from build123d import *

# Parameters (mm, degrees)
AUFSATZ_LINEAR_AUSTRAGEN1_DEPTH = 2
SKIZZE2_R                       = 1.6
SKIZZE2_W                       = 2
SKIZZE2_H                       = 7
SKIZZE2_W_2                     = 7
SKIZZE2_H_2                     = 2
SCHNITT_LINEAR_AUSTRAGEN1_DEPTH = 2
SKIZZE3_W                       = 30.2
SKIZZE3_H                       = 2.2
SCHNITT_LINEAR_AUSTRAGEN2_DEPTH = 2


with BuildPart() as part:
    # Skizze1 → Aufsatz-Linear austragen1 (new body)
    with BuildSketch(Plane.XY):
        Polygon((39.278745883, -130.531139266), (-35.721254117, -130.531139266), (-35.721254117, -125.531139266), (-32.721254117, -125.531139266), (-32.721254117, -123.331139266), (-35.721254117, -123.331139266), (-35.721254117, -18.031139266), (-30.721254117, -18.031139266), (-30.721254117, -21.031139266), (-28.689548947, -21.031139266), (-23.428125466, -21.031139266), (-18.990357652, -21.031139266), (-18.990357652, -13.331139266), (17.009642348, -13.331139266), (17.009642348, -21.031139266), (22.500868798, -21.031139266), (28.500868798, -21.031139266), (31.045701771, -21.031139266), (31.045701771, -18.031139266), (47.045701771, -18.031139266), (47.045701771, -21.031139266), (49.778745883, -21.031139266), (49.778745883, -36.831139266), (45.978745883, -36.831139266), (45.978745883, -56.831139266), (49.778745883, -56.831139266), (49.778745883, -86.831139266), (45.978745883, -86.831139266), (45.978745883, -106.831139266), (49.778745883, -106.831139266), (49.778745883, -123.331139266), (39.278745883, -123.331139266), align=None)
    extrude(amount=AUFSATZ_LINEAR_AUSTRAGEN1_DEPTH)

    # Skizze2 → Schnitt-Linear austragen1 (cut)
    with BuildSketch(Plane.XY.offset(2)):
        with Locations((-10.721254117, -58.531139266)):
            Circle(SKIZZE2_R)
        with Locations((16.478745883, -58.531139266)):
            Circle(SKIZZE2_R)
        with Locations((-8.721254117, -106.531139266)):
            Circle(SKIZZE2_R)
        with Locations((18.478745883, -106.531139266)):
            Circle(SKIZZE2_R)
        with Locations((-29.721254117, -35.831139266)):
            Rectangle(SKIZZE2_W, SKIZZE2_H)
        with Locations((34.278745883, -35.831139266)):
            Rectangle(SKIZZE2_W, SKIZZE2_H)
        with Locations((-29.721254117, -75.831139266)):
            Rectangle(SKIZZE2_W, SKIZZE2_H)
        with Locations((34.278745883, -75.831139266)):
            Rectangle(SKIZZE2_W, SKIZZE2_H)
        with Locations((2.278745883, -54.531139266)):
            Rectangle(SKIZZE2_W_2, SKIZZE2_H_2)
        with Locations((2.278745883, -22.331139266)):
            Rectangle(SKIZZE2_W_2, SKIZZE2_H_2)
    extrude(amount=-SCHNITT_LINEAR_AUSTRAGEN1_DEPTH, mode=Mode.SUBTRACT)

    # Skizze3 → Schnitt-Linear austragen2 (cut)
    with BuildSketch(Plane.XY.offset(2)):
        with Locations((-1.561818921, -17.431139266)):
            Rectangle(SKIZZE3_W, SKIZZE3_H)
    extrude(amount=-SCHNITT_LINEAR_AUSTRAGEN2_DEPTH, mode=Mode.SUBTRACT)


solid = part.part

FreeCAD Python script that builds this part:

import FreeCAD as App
import Part
import Sketcher
Q = App.Units.Quantity

doc = App.newDocument("Part")
body = doc.addObject("PartDesign::Body", "Body")

# Sketch on XY plane
sketch1 = body.newObject("Sketcher::SketchObject", "Sketch")
sketch1.AttachmentSupport = (doc.getObject("XY_Plane"), [""])
sketch1.MapMode = "FlatFace"
sketch1.addGeometry(Part.LineSegment(App.Vector(-35.721254, -130.531139, 0), App.Vector(39.278746, -130.531139, 0)), False)
sketch1.addGeometry(Part.LineSegment(App.Vector(39.278746, -130.531139, 0), App.Vector(39.278746, -123.331139, 0)), False)
sketch1.addGeometry(Part.LineSegment(App.Vector(39.278746, -123.331139, 0), App.Vector(49.778746, -123.331139, 0)), False)
sketch1.addGeometry(Part.LineSegment(App.Vector(49.778746, -123.331139, 0), App.Vector(49.778746, -106.831139, 0)), False)
sketch1.addGeometry(Part.LineSegment(App.Vector(49.778746, -106.831139, 0), App.Vector(45.978746, -106.831139, 0)), False)
sketch1.addGeometry(Part.LineSegment(App.Vector(45.978746, -106.831139, 0), App.Vector(45.978746, -86.831139, 0)), False)
sketch1.addGeometry(Part.LineSegment(App.Vector(45.978746, -86.831139, 0), App.Vector(49.778746, -86.831139, 0)), False)
sketch1.addGeometry(Part.LineSegment(App.Vector(49.778746, -86.831139, 0), App.Vector(49.778746, -56.831139, 0)), False)
sketch1.addGeometry(Part.LineSegment(App.Vector(49.778746, -56.831139, 0), App.Vector(45.978746, -56.831139, 0)), False)
sketch1.addGeometry(Part.LineSegment(App.Vector(45.978746, -56.831139, 0), App.Vector(45.978746, -36.831139, 0)), False)
sketch1.addGeometry(Part.LineSegment(App.Vector(45.978746, -36.831139, 0), App.Vector(49.778746, -36.831139, 0)), False)
sketch1.addGeometry(Part.LineSegment(App.Vector(49.778746, -36.831139, 0), App.Vector(49.778746, -21.031139, 0)), False)
sketch1.addGeometry(Part.LineSegment(App.Vector(49.778746, -21.031139, 0), App.Vector(47.045702, -21.031139, 0)), False)
sketch1.addGeometry(Part.LineSegment(App.Vector(47.045702, -21.031139, 0), App.Vector(47.045702, -18.031139, 0)), False)
sketch1.addGeometry(Part.LineSegment(App.Vector(47.045702, -18.031139, 0), App.Vector(31.045702, -18.031139, 0)), False)
sketch1.addGeometry(Part.LineSegment(App.Vector(31.045702, -18.031139, 0), App.Vector(31.045702, -21.031139, 0)), False)
sketch1.addGeometry(Part.LineSegment(App.Vector(31.045702, -21.031139, 0), App.Vector(17.009642, -21.031139, 0)), False)
sketch1.addGeometry(Part.LineSegment(App.Vector(17.009642, -21.031139, 0), App.Vector(17.009642, -13.331139, 0)), False)
sketch1.addGeometry(Part.LineSegment(App.Vector(17.009642, -13.331139, 0), App.Vector(-18.990358, -13.331139, 0)), False)
sketch1.addGeometry(Part.LineSegment(App.Vector(-18.990358, -13.331139, 0), App.Vector(-18.990358, -21.031139, 0)), False)
sketch1.addGeometry(Part.LineSegment(App.Vector(-18.990358, -21.031139, 0), App.Vector(-30.721254, -21.031139, 0)), False)
sketch1.addGeometry(Part.LineSegment(App.Vector(-30.721254, -21.031139, 0), App.Vector(-30.721254, -18.031139, 0)), False)
sketch1.addGeometry(Part.LineSegment(App.Vector(-30.721254, -18.031139, 0), App.Vector(-35.721254, -18.031139, 0)), False)
sketch1.addGeometry(Part.LineSegment(App.Vector(-35.721254, -18.031139, 0), App.Vector(-35.721254, -123.331139, 0)), False)
sketch1.addGeometry(Part.LineSegment(App.Vector(-35.721254, -123.331139, 0), App.Vector(-32.721254, -123.331139, 0)), False)
sketch1.addGeometry(Part.LineSegment(App.Vector(-32.721254, -123.331139, 0), App.Vector(-32.721254, -125.531139, 0)), False)
sketch1.addGeometry(Part.LineSegment(App.Vector(-32.721254, -125.531139, 0), App.Vector(-35.721254, -125.531139, 0)), False)
sketch1.addGeometry(Part.LineSegment(App.Vector(-35.721254, -125.531139, 0), App.Vector(-35.721254, -130.531139, 0)), False)
sketch1.addConstraint(Sketcher.Constraint("Coincident", 0, 2, 1, 1))
sketch1.addConstraint(Sketcher.Constraint("Coincident", 1, 2, 2, 1))
sketch1.addConstraint(Sketcher.Constraint("Coincident", 2, 2, 3, 1))
sketch1.addConstraint(Sketcher.Constraint("Coincident", 3, 2, 4, 1))
sketch1.addConstraint(Sketcher.Constraint("Coincident", 4, 2, 5, 1))
sketch1.addConstraint(Sketcher.Constraint("Coincident", 5, 2, 6, 1))
sketch1.addConstraint(Sketcher.Constraint("Coincident", 6, 2, 7, 1))
sketch1.addConstraint(Sketcher.Constraint("Coincident", 7, 2, 8, 1))
sketch1.addConstraint(Sketcher.Constraint("Coincident", 8, 2, 9, 1))
sketch1.addConstraint(Sketcher.Constraint("Coincident", 9, 2, 10, 1))
sketch1.addConstraint(Sketcher.Constraint("Coincident", 10, 2, 11, 1))
sketch1.addConstraint(Sketcher.Constraint("Coincident", 11, 2, 12, 1))
sketch1.addConstraint(Sketcher.Constraint("Coincident", 12, 2, 13, 1))
sketch1.addConstraint(Sketcher.Constraint("Coincident", 13, 2, 14, 1))
sketch1.addConstraint(Sketcher.Constraint("Coincident", 14, 2, 15, 1))
sketch1.addConstraint(Sketcher.Constraint("Coincident", 15, 2, 16, 1))
sketch1.addConstraint(Sketcher.Constraint("Coincident", 16, 2, 17, 1))
sketch1.addConstraint(Sketcher.Constraint("Coincident", 17, 2, 18, 1))
sketch1.addConstraint(Sketcher.Constraint("Coincident", 18, 2, 19, 1))
sketch1.addConstraint(Sketcher.Constraint("Coincident", 19, 2, 20, 1))
sketch1.addConstraint(Sketcher.Constraint("Coincident", 20, 2, 21, 1))
sketch1.addConstraint(Sketcher.Constraint("Coincident", 21, 2, 22, 1))
sketch1.addConstraint(Sketcher.Constraint("Coincident", 22, 2, 23, 1))
sketch1.addConstraint(Sketcher.Constraint("Coincident", 23, 2, 24, 1))
sketch1.addConstraint(Sketcher.Constraint("Coincident", 24, 2, 25, 1))
sketch1.addConstraint(Sketcher.Constraint("Coincident", 25, 2, 26, 1))
sketch1.addConstraint(Sketcher.Constraint("Coincident", 26, 2, 27, 1))
sketch1.addConstraint(Sketcher.Constraint("Coincident", 27, 2, 0, 1))
sketch1.addConstraint(Sketcher.Constraint("Horizontal", 0))
sketch1.addConstraint(Sketcher.Constraint("Vertical", 1))
sketch1.addConstraint(Sketcher.Constraint("Horizontal", 2))
sketch1.addConstraint(Sketcher.Constraint("Vertical", 3))
sketch1.addConstraint(Sketcher.Constraint("Horizontal", 4))
sketch1.addConstraint(Sketcher.Constraint("Vertical", 5))
sketch1.addConstraint(Sketcher.Constraint("Horizontal", 6))
sketch1.addConstraint(Sketcher.Constraint("Vertical", 7))
sketch1.addConstraint(Sketcher.Constraint("Horizontal", 8))
sketch1.addConstraint(Sketcher.Constraint("Vertical", 9))
sketch1.addConstraint(Sketcher.Constraint("Horizontal", 10))
sketch1.addConstraint(Sketcher.Constraint("Vertical", 11))
sketch1.addConstraint(Sketcher.Constraint("Horizontal", 12))
sketch1.addConstraint(Sketcher.Constraint("Vertical", 13))
sketch1.addConstraint(Sketcher.Constraint("Horizontal", 14))
sketch1.addConstraint(Sketcher.Constraint("Vertical", 15))
sketch1.addConstraint(Sketcher.Constraint("Horizontal", 16))
sketch1.addConstraint(Sketcher.Constraint("Vertical", 17))
sketch1.addConstraint(Sketcher.Constraint("Horizontal", 18))
sketch1.addConstraint(Sketcher.Constraint("Vertical", 19))
sketch1.addConstraint(Sketcher.Constraint("Horizontal", 20))
sketch1.addConstraint(Sketcher.Constraint("Vertical", 21))
sketch1.addConstraint(Sketcher.Constraint("Horizontal", 22))
sketch1.addConstraint(Sketcher.Constraint("Vertical", 23))
sketch1.addConstraint(Sketcher.Constraint("Horizontal", 24))
sketch1.addConstraint(Sketcher.Constraint("Vertical", 25))
sketch1.addConstraint(Sketcher.Constraint("Horizontal", 26))
sketch1.addConstraint(Sketcher.Constraint("Vertical", 27))
sketch1.addConstraint(Sketcher.Constraint("Horizontal", 12, 2, 15, 2))
sketch1.addConstraint(Sketcher.Constraint("Horizontal", 16, 2, 19, 2))
sketch1.addConstraint(Sketcher.Constraint("Horizontal", 14, 2, 21, 2))
sketch1.addConstraint(Sketcher.Constraint("Horizontal", 2, 2, 23, 2))
sketch1.addConstraint(Sketcher.Constraint("Vertical", 3, 2, 6, 2))
sketch1.addConstraint(Sketcher.Constraint("Vertical", 5, 2, 8, 2))
sketch1.addConstraint(Sketcher.Constraint("Vertical", 7, 2, 10, 2))
sketch1.addConstraint(Sketcher.Constraint("Vertical", 23, 2, 26, 2))
sketch1.addConstraint(Sketcher.Constraint("Equal", 5, 9))
sketch1.addConstraint(Sketcher.Constraint("Equal", 26, 13))
sketch1.addConstraint(Sketcher.Constraint("Equal", 22, 27))
sketch1.addConstraint(Sketcher.Constraint("DistanceX", 0, 1, 0, 2, Q("75 mm")))
sketch1.addConstraint(Sketcher.Constraint("DistanceX", 14, 2, 14, 1, Q("16 mm")))
sketch1.addConstraint(Sketcher.Constraint("DistanceX", 18, 2, 18, 1, Q("36 mm")))
sketch1.addConstraint(Sketcher.Constraint("DistanceX", 22, 2, 22, 1, Q("5 mm")))
sketch1.addConstraint(Sketcher.Constraint("DistanceX", 24, 1, 24, 2, Q("3 mm")))
sketch1.addConstraint(Sketcher.Constraint("DistanceY", 5, 1, 5, 2, Q("20 mm")))
sketch1.addConstraint(Sketcher.Constraint("DistanceY", 7, 1, 7, 2, Q("30 mm")))
sketch1.addConstraint(Sketcher.Constraint("DistanceX", 2, 1, 2, 2, Q("10.5 mm")))
sketch1.addConstraint(Sketcher.Constraint("DistanceX", 4, 2, 4, 1, Q("3.8 mm")))
sketch1.addConstraint(Sketcher.Constraint("DistanceY", 1, 1, 1, 2, Q("7.2 mm")))
sketch1.addConstraint(Sketcher.Constraint("DistanceY", 3, 1, 3, 2, Q("16.5 mm")))
sketch1.addConstraint(Sketcher.Constraint("DistanceY", 11, 1, 11, 2, Q("15.8 mm")))
sketch1.addConstraint(Sketcher.Constraint("DistanceY", 17, 1, 17, 2, Q("7.7 mm")))
sketch1.addConstraint(Sketcher.Constraint("DistanceX", 16, 2, 16, 1, Q("14.036059 mm")))
sketch1.addConstraint(Sketcher.Constraint("DistanceX", -1, 1, 12, 2, Q("47.045702 mm")))
sketch1.addConstraint(Sketcher.Constraint("DistanceX", 12, 2, 12, 1, Q("2.733044 mm")))
sketch1.addConstraint(Sketcher.Constraint("DistanceY", 0, 2, -1, 1, Q("130.531139 mm")))
pad1 = body.newObject("PartDesign::Pad", "Pad")
pad1.Profile = sketch1
pad1.Length = 2

# Sketch on XY plane
sketch2 = body.newObject("Sketcher::SketchObject", "Sketch001")
sketch2.AttachmentSupport = (doc.getObject("XY_Plane"), [""])
sketch2.MapMode = "FlatFace"
sketch2.AttachmentOffset = App.Placement(App.Vector(0, 0, 2), App.Rotation())
sketch2.addGeometry(Part.Circle(App.Vector(-10.721254, -58.531139, 0), App.Vector(0, 0, 1), 1.6), False)
sketch2.addGeometry(Part.Circle(App.Vector(16.478746, -58.531139, 0), App.Vector(0, 0, 1), 1.6), False)
sketch2.addGeometry(Part.Circle(App.Vector(-8.721254, -106.531139, 0), App.Vector(0, 0, 1), 1.6), False)
sketch2.addGeometry(Part.Circle(App.Vector(18.478746, -106.531139, 0), App.Vector(0, 0, 1), 1.6), False)
sketch2.addGeometry(Part.LineSegment(App.Vector(-30.721254, -32.331139, 0), App.Vector(-30.721254, -39.331139, 0)), False)
sketch2.addGeometry(Part.LineSegment(App.Vector(-30.721254, -39.331139, 0), App.Vector(-28.721254, -39.331139, 0)), False)
sketch2.addGeometry(Part.LineSegment(App.Vector(-28.721254, -39.331139, 0), App.Vector(-28.721254, -32.331139, 0)), False)
sketch2.addGeometry(Part.LineSegment(App.Vector(-28.721254, -32.331139, 0), App.Vector(-30.721254, -32.331139, 0)), False)
sketch2.addGeometry(Part.LineSegment(App.Vector(33.278746, -32.331139, 0), App.Vector(33.278746, -39.331139, 0)), False)
sketch2.addGeometry(Part.LineSegment(App.Vector(33.278746, -39.331139, 0), App.Vector(35.278746, -39.331139, 0)), False)
sketch2.addGeometry(Part.LineSegment(App.Vector(35.278746, -39.331139, 0), App.Vector(35.278746, -32.331139, 0)), False)
sketch2.addGeometry(Part.LineSegment(App.Vector(35.278746, -32.331139, 0), App.Vector(33.278746, -32.331139, 0)), False)
sketch2.addGeometry(Part.LineSegment(App.Vector(-30.721254, -72.331139, 0), App.Vector(-30.721254, -79.331139, 0)), False)
sketch2.addGeometry(Part.LineSegment(App.Vector(-30.721254, -79.331139, 0), App.Vector(-28.721254, -79.331139, 0)), False)
sketch2.addGeometry(Part.LineSegment(App.Vector(-28.721254, -79.331139, 0), App.Vector(-28.721254, -72.331139, 0)), False)
sketch2.addGeometry(Part.LineSegment(App.Vector(-28.721254, -72.331139, 0), App.Vector(-30.721254, -72.331139, 0)), False)
sketch2.addGeometry(Part.LineSegment(App.Vector(33.278746, -72.331139, 0), App.Vector(33.278746, -79.331139, 0)), False)
sketch2.addGeometry(Part.LineSegment(App.Vector(33.278746, -79.331139, 0), App.Vector(35.278746, -79.331139, 0)), False)
sketch2.addGeometry(Part.LineSegment(App.Vector(35.278746, -79.331139, 0), App.Vector(35.278746, -72.331139, 0)), False)
sketch2.addGeometry(Part.LineSegment(App.Vector(35.278746, -72.331139, 0), App.Vector(33.278746, -72.331139, 0)), False)
sketch2.addGeometry(Part.LineSegment(App.Vector(-1.221254, -53.531139, 0), App.Vector(-1.221254, -55.531139, 0)), False)
sketch2.addGeometry(Part.LineSegment(App.Vector(-1.221254, -55.531139, 0), App.Vector(5.778746, -55.531139, 0)), False)
sketch2.addGeometry(Part.LineSegment(App.Vector(5.778746, -55.531139, 0), App.Vector(5.778746, -53.531139, 0)), False)
sketch2.addGeometry(Part.LineSegment(App.Vector(5.778746, -53.531139, 0), App.Vector(-1.221254, -53.531139, 0)), False)
sketch2.addGeometry(Part.LineSegment(App.Vector(-1.221254, -21.331139, 0), App.Vector(-1.221254, -23.331139, 0)), False)
sketch2.addGeometry(Part.LineSegment(App.Vector(-1.221254, -23.331139, 0), App.Vector(5.778746, -23.331139, 0)), False)
sketch2.addGeometry(Part.LineSegment(App.Vector(5.778746, -23.331139, 0), App.Vector(5.778746, -21.331139, 0)), False)
sketch2.addGeometry(Part.LineSegment(App.Vector(5.778746, -21.331139, 0), App.Vector(-1.221254, -21.331139, 0)), False)
sketch2.addConstraint(Sketcher.Constraint("Coincident", 4, 2, 5, 1))
sketch2.addConstraint(Sketcher.Constraint("Coincident", 5, 2, 6, 1))
sketch2.addConstraint(Sketcher.Constraint("Coincident", 6, 2, 7, 1))
sketch2.addConstraint(Sketcher.Constraint("Coincident", 7, 2, 4, 1))
sketch2.addConstraint(Sketcher.Constraint("Coincident", 8, 2, 9, 1))
sketch2.addConstraint(Sketcher.Constraint("Coincident", 9, 2, 10, 1))
sketch2.addConstraint(Sketcher.Constraint("Coincident", 10, 2, 11, 1))
sketch2.addConstraint(Sketcher.Constraint("Coincident", 11, 2, 8, 1))
sketch2.addConstraint(Sketcher.Constraint("Coincident", 12, 2, 13, 1))
sketch2.addConstraint(Sketcher.Constraint("Coincident", 13, 2, 14, 1))
sketch2.addConstraint(Sketcher.Constraint("Coincident", 14, 2, 15, 1))
sketch2.addConstraint(Sketcher.Constraint("Coincident", 15, 2, 12, 1))
sketch2.addConstraint(Sketcher.Constraint("Coincident", 16, 2, 17, 1))
sketch2.addConstraint(Sketcher.Constraint("Coincident", 17, 2, 18, 1))
sketch2.addConstraint(Sketcher.Constraint("Coincident", 18, 2, 19, 1))
sketch2.addConstraint(Sketcher.Constraint("Coincident", 19, 2, 16, 1))
sketch2.addConstraint(Sketcher.Constraint("Coincident", 20, 2, 21, 1))
sketch2.addConstraint(Sketcher.Constraint("Coincident", 21, 2, 22, 1))
sketch2.addConstraint(Sketcher.Constraint("Coincident", 22, 2, 23, 1))
sketch2.addConstraint(Sketcher.Constraint("Coincident", 23, 2, 20, 1))
sketch2.addConstraint(Sketcher.Constraint("Coincident", 24, 2, 25, 1))
sketch2.addConstraint(Sketcher.Constraint("Coincident", 25, 2, 26, 1))
sketch2.addConstraint(Sketcher.Constraint("Coincident", 26, 2, 27, 1))
sketch2.addConstraint(Sketcher.Constraint("Coincident", 27, 2, 24, 1))
sketch2.addConstraint(Sketcher.Constraint("Vertical", 4))
sketch2.addConstraint(Sketcher.Constraint("Horizontal", 5))
sketch2.addConstraint(Sketcher.Constraint("Vertical", 6))
sketch2.addConstraint(Sketcher.Constraint("Horizontal", 7))
sketch2.addConstraint(Sketcher.Constraint("Vertical", 8))
sketch2.addConstraint(Sketcher.Constraint("Horizontal", 9))
sketch2.addConstraint(Sketcher.Constraint("Vertical", 10))
sketch2.addConstraint(Sketcher.Constraint("Horizontal", 11))
sketch2.addConstraint(Sketcher.Constraint("Vertical", 12))
sketch2.addConstraint(Sketcher.Constraint("Horizontal", 13))
sketch2.addConstraint(Sketcher.Constraint("Vertical", 14))
sketch2.addConstraint(Sketcher.Constraint("Horizontal", 15))
sketch2.addConstraint(Sketcher.Constraint("Vertical", 16))
sketch2.addConstraint(Sketcher.Constraint("Horizontal", 17))
sketch2.addConstraint(Sketcher.Constraint("Vertical", 18))
sketch2.addConstraint(Sketcher.Constraint("Horizontal", 19))
sketch2.addConstraint(Sketcher.Constraint("Vertical", 20))
sketch2.addConstraint(Sketcher.Constraint("Horizontal", 21))
sketch2.addConstraint(Sketcher.Constraint("Vertical", 22))
sketch2.addConstraint(Sketcher.Constraint("Horizontal", 23))
sketch2.addConstraint(Sketcher.Constraint("Vertical", 24))
sketch2.addConstraint(Sketcher.Constraint("Horizontal", 25))
sketch2.addConstraint(Sketcher.Constraint("Vertical", 26))
sketch2.addConstraint(Sketcher.Constraint("Horizontal", 27))
sketch2.addConstraint(Sketcher.Constraint("Equal", 0, 1))
sketch2.addConstraint(Sketcher.Constraint("Equal", 1, 2))
sketch2.addConstraint(Sketcher.Constraint("Equal", 2, 3))
sketch2.addConstraint(Sketcher.Constraint("Horizontal", 0, 3, 1, 3))
sketch2.addConstraint(Sketcher.Constraint("Horizontal", 2, 3, 3, 3))
sketch2.addConstraint(Sketcher.Constraint("Horizontal", 5, 2, 8, 2))
sketch2.addConstraint(Sketcher.Constraint("Horizontal", 7, 2, 10, 2))
sketch2.addConstraint(Sketcher.Constraint("Horizontal", 13, 2, 16, 2))
sketch2.addConstraint(Sketcher.Constraint("Horizontal", 15, 2, 18, 2))
sketch2.addConstraint(Sketcher.Constraint("Vertical", 7, 2, 12, 2))
sketch2.addConstraint(Sketcher.Constraint("Vertical", 6, 2, 13, 2))
sketch2.addConstraint(Sketcher.Constraint("Vertical", 11, 2, 16, 2))
sketch2.addConstraint(Sketcher.Constraint("Vertical", 10, 2, 17, 2))
sketch2.addConstraint(Sketcher.Constraint("Vertical", 23, 2, 24, 2))
sketch2.addConstraint(Sketcher.Constraint("Vertical", 22, 2, 25, 2))
sketch2.addConstraint(Sketcher.Constraint("Equal", 7, 9))
sketch2.addConstraint(Sketcher.Constraint("Equal", 27, 4))
sketch2.addConstraint(Sketcher.Constraint("Equal", 10, 12))
sketch2.addConstraint(Sketcher.Constraint("Equal", 19, 20))
sketch2.addConstraint(Sketcher.Constraint("Equal", 22, 24))
sketch2.addConstraint(Sketcher.Constraint("Diameter", 0, Q("3.2 mm")))
sketch2.addConstraint(Sketcher.Constraint("DistanceX", 5, 1, 5, 2, Q("2 mm")))
sketch2.addConstraint(Sketcher.Constraint("DistanceX", 21, 1, 21, 2, Q("7 mm")))
sketch2.addConstraint(Sketcher.Constraint("DistanceX", 0, 3, 2, 3, Q("2 mm")))
sketch2.addConstraint(Sketcher.Constraint("DistanceY", 2, 3, 0, 3, Q("48 mm")))
sketch2.addConstraint(Sketcher.Constraint("DistanceX", 1, 3, 3, 3, Q("2 mm")))
sketch2.addConstraint(Sketcher.Constraint("DistanceX", 4, 2, 0, 3, Q("20 mm")))
sketch2.addConstraint(Sketcher.Constraint("DistanceX", 0, 3, 8, 2, Q("44 mm")))
sketch2.addConstraint(Sketcher.Constraint("DistanceY", 12, 2, 4, 2, Q("40 mm")))
sketch2.addConstraint(Sketcher.Constraint("DistanceY", 0, 3, 20, 2, Q("3 mm")))
sketch2.addConstraint(Sketcher.Constraint("DistanceY", 6, 2, 24, 2, Q("9 mm")))
sketch2.addConstraint(Sketcher.Constraint("DistanceX", 0, 3, 1, 3, Q("27.2 mm")))
sketch2.addConstraint(Sketcher.Constraint("DistanceY", 0, 3, 4, 2, Q("19.2 mm")))
sketch2.addConstraint(Sketcher.Constraint("DistanceX", 0, 3, 20, 2, Q("9.5 mm")))
sketch2.addConstraint(Sketcher.Constraint("DistanceY", 0, 3, -1, 1, Q("58.531139 mm")))
sketch2.addConstraint(Sketcher.Constraint("DistanceX", 0, 3, -1, 1, Q("10.721254 mm")))
pocket1 = body.newObject("PartDesign::Pocket", "Pocket")
pocket1.Profile = sketch2
pocket1.Length = 2

# Sketch on XY plane
sketch3 = body.newObject("Sketcher::SketchObject", "Sketch002")
sketch3.AttachmentSupport = (doc.getObject("XY_Plane"), [""])
sketch3.MapMode = "FlatFace"
sketch3.AttachmentOffset = App.Placement(App.Vector(0, 0, 2), App.Rotation())
sketch3.addGeometry(Part.LineSegment(App.Vector(-16.661819, -16.331139, 0), App.Vector(-16.661819, -18.531139, 0)), False)
sketch3.addGeometry(Part.LineSegment(App.Vector(-16.661819, -18.531139, 0), App.Vector(13.538181, -18.531139, 0)), False)
sketch3.addGeometry(Part.LineSegment(App.Vector(13.538181, -18.531139, 0), App.Vector(13.538181, -16.331139, 0)), False)
sketch3.addGeometry(Part.LineSegment(App.Vector(13.538181, -16.331139, 0), App.Vector(-16.661819, -16.331139, 0)), False)
sketch3.addConstraint(Sketcher.Constraint("Coincident", 0, 2, 1, 1))
sketch3.addConstraint(Sketcher.Constraint("Coincident", 1, 2, 2, 1))
sketch3.addConstraint(Sketcher.Constraint("Coincident", 2, 2, 3, 1))
sketch3.addConstraint(Sketcher.Constraint("Coincident", 3, 2, 0, 1))
sketch3.addConstraint(Sketcher.Constraint("Vertical", 0))
sketch3.addConstraint(Sketcher.Constraint("Horizontal", 1))
sketch3.addConstraint(Sketcher.Constraint("Vertical", 2))
sketch3.addConstraint(Sketcher.Constraint("Horizontal", 3))
sketch3.addConstraint(Sketcher.Constraint("DistanceX", 1, 1, 1, 2, Q("30.2 mm")))
sketch3.addConstraint(Sketcher.Constraint("DistanceY", 0, 2, 0, 1, Q("2.2 mm")))
sketch3.addConstraint(Sketcher.Constraint("DistanceX", 0, 2, -1, 1, Q("16.661819 mm")))
sketch3.addConstraint(Sketcher.Constraint("DistanceY", 0, 2, -1, 1, Q("18.531139 mm")))
pocket2 = body.newObject("PartDesign::Pocket", "Pocket001")
pocket2.Profile = sketch3
pocket2.Length = 2

doc.recompute()
